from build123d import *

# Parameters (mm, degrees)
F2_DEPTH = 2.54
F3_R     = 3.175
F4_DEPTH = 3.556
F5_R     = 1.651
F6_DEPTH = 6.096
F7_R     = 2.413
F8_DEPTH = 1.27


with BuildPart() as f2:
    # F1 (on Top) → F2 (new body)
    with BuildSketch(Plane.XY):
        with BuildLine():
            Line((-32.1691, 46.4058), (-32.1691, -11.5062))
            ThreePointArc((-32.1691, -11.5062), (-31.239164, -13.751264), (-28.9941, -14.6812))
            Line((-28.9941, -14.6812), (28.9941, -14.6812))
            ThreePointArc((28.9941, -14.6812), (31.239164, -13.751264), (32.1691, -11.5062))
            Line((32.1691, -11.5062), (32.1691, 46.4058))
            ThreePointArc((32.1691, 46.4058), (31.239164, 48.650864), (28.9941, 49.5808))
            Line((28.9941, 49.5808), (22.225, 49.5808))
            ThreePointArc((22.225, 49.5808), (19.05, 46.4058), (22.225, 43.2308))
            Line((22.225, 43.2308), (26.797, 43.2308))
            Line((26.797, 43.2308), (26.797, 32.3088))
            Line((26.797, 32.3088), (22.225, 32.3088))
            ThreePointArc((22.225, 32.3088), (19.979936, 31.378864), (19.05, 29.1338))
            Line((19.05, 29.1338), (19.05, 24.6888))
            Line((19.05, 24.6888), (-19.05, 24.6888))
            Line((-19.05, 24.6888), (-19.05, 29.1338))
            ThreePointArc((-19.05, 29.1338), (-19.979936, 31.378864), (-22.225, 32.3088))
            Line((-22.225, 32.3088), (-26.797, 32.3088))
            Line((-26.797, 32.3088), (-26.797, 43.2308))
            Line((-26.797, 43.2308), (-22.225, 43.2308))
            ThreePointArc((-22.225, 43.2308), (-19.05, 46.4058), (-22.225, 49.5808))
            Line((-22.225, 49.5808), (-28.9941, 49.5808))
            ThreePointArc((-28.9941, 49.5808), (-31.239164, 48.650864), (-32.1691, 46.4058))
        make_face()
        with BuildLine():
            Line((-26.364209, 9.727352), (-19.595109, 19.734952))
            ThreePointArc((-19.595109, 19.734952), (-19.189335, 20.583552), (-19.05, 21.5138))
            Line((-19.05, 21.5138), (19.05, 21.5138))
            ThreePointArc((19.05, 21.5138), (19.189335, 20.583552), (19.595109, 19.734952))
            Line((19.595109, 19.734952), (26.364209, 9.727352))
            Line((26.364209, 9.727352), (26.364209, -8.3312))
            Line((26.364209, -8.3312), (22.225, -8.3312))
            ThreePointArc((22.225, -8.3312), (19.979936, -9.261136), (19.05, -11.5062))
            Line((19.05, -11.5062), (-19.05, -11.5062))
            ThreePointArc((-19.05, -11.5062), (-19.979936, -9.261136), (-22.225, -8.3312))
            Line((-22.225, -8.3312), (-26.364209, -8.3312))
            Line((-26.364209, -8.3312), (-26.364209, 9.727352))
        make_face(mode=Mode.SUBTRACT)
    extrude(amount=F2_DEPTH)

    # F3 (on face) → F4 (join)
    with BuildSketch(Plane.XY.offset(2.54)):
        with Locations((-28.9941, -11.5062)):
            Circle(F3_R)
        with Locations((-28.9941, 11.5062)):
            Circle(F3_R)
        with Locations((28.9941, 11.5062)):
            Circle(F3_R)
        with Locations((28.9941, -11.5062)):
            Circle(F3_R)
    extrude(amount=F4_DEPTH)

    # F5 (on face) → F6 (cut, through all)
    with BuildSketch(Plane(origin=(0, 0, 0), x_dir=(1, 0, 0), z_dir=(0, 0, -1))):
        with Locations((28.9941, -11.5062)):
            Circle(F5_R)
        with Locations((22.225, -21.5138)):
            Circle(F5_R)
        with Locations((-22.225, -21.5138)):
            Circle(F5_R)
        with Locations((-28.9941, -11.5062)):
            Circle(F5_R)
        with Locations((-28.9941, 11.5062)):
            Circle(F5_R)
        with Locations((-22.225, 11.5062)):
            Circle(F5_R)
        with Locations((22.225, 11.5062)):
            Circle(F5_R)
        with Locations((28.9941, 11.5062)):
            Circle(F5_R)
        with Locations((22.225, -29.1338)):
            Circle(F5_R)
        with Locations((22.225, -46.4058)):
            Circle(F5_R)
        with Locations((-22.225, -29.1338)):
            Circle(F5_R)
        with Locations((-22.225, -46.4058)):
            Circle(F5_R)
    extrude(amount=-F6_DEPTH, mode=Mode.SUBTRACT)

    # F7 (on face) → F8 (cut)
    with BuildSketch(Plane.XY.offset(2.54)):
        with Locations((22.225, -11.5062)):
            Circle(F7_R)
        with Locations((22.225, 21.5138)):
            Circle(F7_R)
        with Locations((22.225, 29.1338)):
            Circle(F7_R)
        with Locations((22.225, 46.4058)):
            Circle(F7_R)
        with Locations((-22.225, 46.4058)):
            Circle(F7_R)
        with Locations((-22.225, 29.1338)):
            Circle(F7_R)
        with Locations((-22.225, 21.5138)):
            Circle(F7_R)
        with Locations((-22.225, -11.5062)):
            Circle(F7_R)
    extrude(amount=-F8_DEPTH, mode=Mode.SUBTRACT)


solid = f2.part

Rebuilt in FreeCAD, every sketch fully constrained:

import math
import FreeCAD as App
import Part
import Sketcher
from FreeCAD import Vector
Q = App.Units.Quantity

doc = App.newDocument("Part")
body = doc.addObject("PartDesign::Body", "Body")

sketch1 = body.newObject("Sketcher::SketchObject", "Sketch")
sketch1.AttachmentSupport = (doc.getObject("XY_Plane"), [""])
sketch1.MapMode = "FlatFace"
sketch1.addGeometry(Part.LineSegment(Vector(-32.2, 46.4, 0), Vector(-32.2, -11.5, 0)), False)
sketch1.addGeometry(Part.ArcOfCircle(Part.Circle(Vector(-29, -11.5, 0), Vector(0, 0, 1), 3.2), math.radians(-180), math.radians(-90)), False)
sketch1.addGeometry(Part.LineSegment(Vector(-29, -14.7, 0), Vector(29, -14.7, 0)), False)
sketch1.addGeometry(Part.ArcOfCircle(Part.Circle(Vector(29, -11.5, 0), Vector(0, 0, 1), 3.2), math.radians(-90), math.radians(0)), False)
sketch1.addGeometry(Part.LineSegment(Vector(32.2, -11.5, 0), Vector(32.2, 46.4, 0)), False)
sketch1.addGeometry(Part.ArcOfCircle(Part.Circle(Vector(29, 46.4, 0), Vector(0, 0, 1), 3.2), math.radians(0), math.radians(90)), False)
sketch1.addGeometry(Part.LineSegment(Vector(29, 49.6, 0), Vector(22.2, 49.6, 0)), False)
sketch1.addGeometry(Part.ArcOfCircle(Part.Circle(Vector(22.2, 46.4, 0), Vector(0, 0, 1), 3.2), math.radians(90), math.radians(270)), False)
sketch1.addGeometry(Part.LineSegment(Vector(22.2, 43.2, 0), Vector(26.8, 43.2, 0)), False)
sketch1.addGeometry(Part.LineSegment(Vector(26.8, 43.2, 0), Vector(26.8, 32.3, 0)), False)
sketch1.addGeometry(Part.LineSegment(Vector(26.8, 32.3, 0), Vector(22.2, 32.3, 0)), False)
sketch1.addGeometry(Part.ArcOfCircle(Part.Circle(Vector(22.2, 29.1, 0), Vector(0, 0, 1), 3.2), math.radians(90), math.radians(180)), False)
sketch1.addGeometry(Part.LineSegment(Vector(19.1, 29.1, 0), Vector(19.1, 24.7, 0)), False)
sketch1.addGeometry(Part.LineSegment(Vector(19.1, 24.7, 0), Vector(-19.1, 24.7, 0)), False)
sketch1.addGeometry(Part.LineSegment(Vector(-19.1, 24.7, 0), Vector(-19.1, 29.1, 0)), False)
sketch1.addGeometry(Part.ArcOfCircle(Part.Circle(Vector(-22.2, 29.1, 0), Vector(0, 0, 1), 3.2), math.radians(0), math.radians(90)), False)
sketch1.addGeometry(Part.LineSegment(Vector(-22.2, 32.3, 0), Vector(-26.8, 32.3, 0)), False)
sketch1.addGeometry(Part.LineSegment(Vector(-26.8, 32.3, 0), Vector(-26.8, 43.2, 0)), False)
sketch1.addGeometry(Part.LineSegment(Vector(-26.8, 43.2, 0), Vector(-22.2, 43.2, 0)), False)
sketch1.addGeometry(Part.ArcOfCircle(Part.Circle(Vector(-22.2, 46.4, 0), Vector(0, 0, 1), 3.2), math.radians(-90), math.radians(90)), False)
sketch1.addGeometry(Part.LineSegment(Vector(-22.2, 49.6, 0), Vector(-29, 49.6, 0)), False)
sketch1.addGeometry(Part.ArcOfCircle(Part.Circle(Vector(-29, 46.4, 0), Vector(0, 0, 1), 3.2), math.radians(90), math.radians(180)), False)
sketch1.addGeometry(Part.LineSegment(Vector(-26.4, -8.3, 0), Vector(-26.4, 9.7, 0)), False)
sketch1.addGeometry(Part.LineSegment(Vector(-26.4, 9.7, 0), Vector(-19.6, 19.7, 0)), False)
sketch1.addGeometry(Part.ArcOfCircle(Part.Circle(Vector(-22.2, 21.5, 0), Vector(0, 0, 1), 3.2), math.radians(-34), math.radians(0)), False)
sketch1.addGeometry(Part.LineSegment(Vector(-19.1, 21.5, 0), Vector(19.1, 21.5, 0)), False)
sketch1.addGeometry(Part.ArcOfCircle(Part.Circle(Vector(22.2, 21.5, 0), Vector(0, 0, 1), 3.2), math.radians(-180), math.radians(-146)), False)
sketch1.addGeometry(Part.LineSegment(Vector(19.6, 19.7, 0), Vector(26.4, 9.7, 0)), False)
sketch1.addGeometry(Part.LineSegment(Vector(26.4, 9.7, 0), Vector(26.4, -8.3, 0)), False)
sketch1.addGeometry(Part.LineSegment(Vector(26.4, -8.3, 0), Vector(22.2, -8.3, 0)), False)
sketch1.addGeometry(Part.ArcOfCircle(Part.Circle(Vector(22.2, -11.5, 0), Vector(0, 0, 1), 3.2), math.radians(90), math.radians(180)), False)
sketch1.addGeometry(Part.LineSegment(Vector(19.1, -11.5, 0), Vector(-19.1, -11.5, 0)), False)
sketch1.addGeometry(Part.ArcOfCircle(Part.Circle(Vector(-22.2, -11.5, 0), Vector(0, 0, 1), 3.2), math.radians(0), math.radians(90)), False)
sketch1.addGeometry(Part.LineSegment(Vector(-22.2, -8.3, 0), Vector(-26.4, -8.3, 0)), False)
sketch1.addConstraint(Sketcher.Constraint("Tangent", 0, 2, 1, 1))
sketch1.addConstraint(Sketcher.Constraint("Tangent", 1, 2, 2, 1))
sketch1.addConstraint(Sketcher.Constraint("Tangent", 2, 2, 3, 1))
sketch1.addConstraint(Sketcher.Constraint("Tangent", 3, 2, 4, 1))
sketch1.addConstraint(Sketcher.Constraint("Tangent", 4, 2, 5, 1))
sketch1.addConstraint(Sketcher.Constraint("Tangent", 5, 2, 6, 1))
sketch1.addConstraint(Sketcher.Constraint("Tangent", 6, 2, 7, 1))
sketch1.addConstraint(Sketcher.Constraint("Tangent", 7, 2, 8, 1))
sketch1.addConstraint(Sketcher.Constraint("Coincident", 8, 2, 9, 1))
sketch1.addConstraint(Sketcher.Constraint("Coincident", 9, 2, 10, 1))
sketch1.addConstraint(Sketcher.Constraint("Tangent", 10, 2, 11, 1))
sketch1.addConstraint(Sketcher.Constraint("Tangent", 11, 2, 12, 1))
sketch1.addConstraint(Sketcher.Constraint("Coincident", 12, 2, 13, 1))
sketch1.addConstraint(Sketcher.Constraint("Coincident", 13, 2, 14, 1))
sketch1.addConstraint(Sketcher.Constraint("Tangent", 14, 2, 15, 1))
sketch1.addConstraint(Sketcher.Constraint("Tangent", 15, 2, 16, 1))
sketch1.addConstraint(Sketcher.Constraint("Coincident", 16, 2, 17, 1))
sketch1.addConstraint(Sketcher.Constraint("Coincident", 17, 2, 18, 1))
sketch1.addConstraint(Sketcher.Constraint("Tangent", 18, 2, 19, 1))
sketch1.addConstraint(Sketcher.Constraint("Tangent", 19, 2, 20, 1))
sketch1.addConstraint(Sketcher.Constraint("Tangent", 20, 2, 21, 1))
sketch1.addConstraint(Sketcher.Constraint("Tangent", 21, 2, 0, 1))
sketch1.addConstraint(Sketcher.Constraint("Coincident", 22, 2, 23, 1))
sketch1.addConstraint(Sketcher.Constraint("Tangent", 23, 2, 24, 1))
sketch1.addConstraint(Sketcher.Constraint("Coincident", 24, 2, 25, 1))
sketch1.addConstraint(Sketcher.Constraint("Coincident", 25, 2, 26, 1))
sketch1.addConstraint(Sketcher.Constraint("Tangent", 26, 2, 27, 1))
sketch1.addConstraint(Sketcher.Constraint("Coincident", 27, 2, 28, 1))
sketch1.addConstraint(Sketcher.Constraint("Coincident", 28, 2, 29, 1))
sketch1.addConstraint(Sketcher.Constraint("Tangent", 29, 2, 30, 1))
sketch1.addConstraint(Sketcher.Constraint("Coincident", 30, 2, 31, 1))
sketch1.addConstraint(Sketcher.Constraint("Coincident", 31, 2, 32, 1))
sketch1.addConstraint(Sketcher.Constraint("Tangent", 32, 2, 33, 1))
sketch1.addConstraint(Sketcher.Constraint("Coincident", 33, 2, 22, 1))
sketch1.addConstraint(Sketcher.Constraint("Vertical", 0))
sketch1.addConstraint(Sketcher.Constraint("Horizontal", 2))
sketch1.addConstraint(Sketcher.Constraint("Vertical", 4))
sketch1.addConstraint(Sketcher.Constraint("Horizontal", 6))
sketch1.addConstraint(Sketcher.Constraint("Horizontal", 8))
sketch1.addConstraint(Sketcher.Constraint("Vertical", 9))
sketch1.addConstraint(Sketcher.Constraint("Horizontal", 10))
sketch1.addConstraint(Sketcher.Constraint("Vertical", 12))
sketch1.addConstraint(Sketcher.Constraint("Horizontal", 13))
sketch1.addConstraint(Sketcher.Constraint("Vertical", 14))
sketch1.addConstraint(Sketcher.Constraint("Horizontal", 16))
sketch1.addConstraint(Sketcher.Constraint("Vertical", 17))
sketch1.addConstraint(Sketcher.Constraint("Horizontal", 18))
sketch1.addConstraint(Sketcher.Constraint("Horizontal", 20))
sketch1.addConstraint(Sketcher.Constraint("Vertical", 22))
sketch1.addConstraint(Sketcher.Constraint("Horizontal", 25))
sketch1.addConstraint(Sketcher.Constraint("Vertical", 28))
sketch1.addConstraint(Sketcher.Constraint("Horizontal", 29))
sketch1.addConstraint(Sketcher.Constraint("Horizontal", 31))
sketch1.addConstraint(Sketcher.Constraint("Horizontal", 33))
sketch1.addConstraint(Sketcher.Constraint("Equal", 1, 3))
sketch1.addConstraint(Sketcher.Constraint("Equal", 3, 5))
sketch1.addConstraint(Sketcher.Constraint("Equal", 5, 7))
sketch1.addConstraint(Sketcher.Constraint("Equal", 7, 11))
sketch1.addConstraint(Sketcher.Constraint("Equal", 11, 15))
sketch1.addConstraint(Sketcher.Constraint("Equal", 15, 19))
sketch1.addConstraint(Sketcher.Constraint("Equal", 19, 21))
sketch1.addConstraint(Sketcher.Constraint("Equal", 24, 26))
sketch1.addConstraint(Sketcher.Constraint("Equal", 21, 30))
sketch1.addConstraint(Sketcher.Constraint("Equal", 30, 32))
sketch1.addConstraint(Sketcher.Constraint("Symmetric", 11, 3, 15, 3, -2))
sketch1.addConstraint(Sketcher.Constraint("Symmetric", 7, 3, 19, 3, -2))
sketch1.addConstraint(Sketcher.Constraint("Symmetric", 24, 3, 26, 3, -2))
sketch1.addConstraint(Sketcher.Constraint("Symmetric", 30, 3, 32, 3, -2))
sketch1.addConstraint(Sketcher.Constraint("Symmetric", 22, 2, 27, 2, -2))
sketch1.addConstraint(Sketcher.Constraint("Horizontal", 3, 3, 30, 3))
sketch1.addConstraint(Sketcher.Constraint("Horizontal", 3, 2, 30, 2))
sketch1.addConstraint(Sketcher.Constraint("Vertical", 7, 3, 11, 3))
sketch1.addConstraint(Sketcher.Constraint("Vertical", 11, 3, 30, 3))
sketch1.addConstraint(Sketcher.Constraint("Vertical", 14, 2, 24, 2))
sketch1.addConstraint(Sketcher.Constraint("Equal", 10, 16))
sketch1.addConstraint(Sketcher.Constraint("Equal", 6, 20))
sketch1.addConstraint(Sketcher.Constraint("DistanceX", 13, 2, 13, 1, Q("1.5 in")))
sketch1.addConstraint(Sketcher.Constraint("Radius", 1, Q("0.125 in")))
sketch1.addConstraint(Sketcher.Constraint("DistanceX", 8, 1, 8, 2, Q("0.18 in")))
sketch1.addConstraint(Sketcher.Constraint("DistanceY", 0, 2, 0, 1, Q("2.28 in")))
sketch1.addConstraint(Sketcher.Constraint("DistanceY", 9, 2, 9, 1, Q("0.43 in")))
sketch1.addConstraint(Sketcher.Constraint("DistanceY", 24, 3, 15, 3, Q("0.2999999 in")))
sketch1.addConstraint(Sketcher.Constraint("DistanceY", 12, 2, 10, 2, Q("0.3 in")))
sketch1.addConstraint(Sketcher.Constraint("DistanceY", 24, 2, 14, 2, Q("0.3 in")))
sketch1.addConstraint(Sketcher.Constraint("DistanceX", 2, 1, 2, 2, Q("2.283 in")))
sketch1.addConstraint(Sketcher.Constraint("DistanceY", 1, 3, -1, 1, Q("0.453 in")))
sketch1.addConstraint(Sketcher.Constraint("Radius", 24, 3.175009))
sketch1.addConstraint(Sketcher.Constraint("DistanceY", 22, 2, 23, 2, Q("0.394 in")))
sketch1.addConstraint(Sketcher.Constraint("DistanceX", 22, 2, 23, 2, Q("0.2665 in")))
pad1 = body.newObject("PartDesign::Pad", "Pad")
pad1.Profile = sketch1
pad1.Length = Q("0.1 in")

sketch2 = body.newObject("Sketcher::SketchObject", "Sketch001")
sketch2.AttachmentSupport = (doc.getObject("XY_Plane"), [""])
sketch2.MapMode = "FlatFace"
sketch2.AttachmentOffset = App.Placement(Vector(0, 0, 0.1 * 25.4), App.Rotation())
sketch2.addGeometry(Part.Circle(Vector(-29, -11.5, 0), Vector(0, 0, 1), 3.2), False)
sketch2.addGeometry(Part.Circle(Vector(-29, 11.5, 0), Vector(0, 0, 1), 3.2), False)
sketch2.addGeometry(Part.Circle(Vector(29, 11.5, 0), Vector(0, 0, 1), 3.2), False)
sketch2.addGeometry(Part.Circle(Vector(29, -11.5, 0), Vector(0, 0, 1), 3.2), False)
sketch2.addConstraint(Sketcher.Constraint("Equal", 0, 1))
sketch2.addConstraint(Sketcher.Constraint("Equal", 1, 2))
sketch2.addConstraint(Sketcher.Constraint("Equal", 2, 3))
sketch2.addConstraint(Sketcher.Constraint("Symmetric", 0, 3, 2, 3, -1, 1))
sketch2.addConstraint(Sketcher.Constraint("Symmetric", 1, 3, 3, 3, -1, 1))
sketch2.addConstraint(Sketcher.Constraint("Symmetric", 1, 3, 2, 3, -2))
sketch2.addConstraint(Sketcher.Constraint("Diameter", 0, Q("0.25 in")))
sketch2.addConstraint(Sketcher.Constraint("DistanceY", 0, 3, -1, 1, Q("0.453 in")))
sketch2.addConstraint(Sketcher.Constraint("DistanceX", 1, 3, 2, 3, Q("2.283 in")))
pad2 = body.newObject("PartDesign::Pad", "Pad001")
pad2.Profile = sketch2
pad2.Length = Q("0.14 in")

sketch3 = body.newObject("Sketcher::SketchObject", "Sketch002")
sketch3.AttachmentSupport = (doc.getObject("XY_Plane"), [""])
sketch3.MapMode = "FlatFace"
sketch3.addGeometry(Part.Circle(Vector(29, 11.5, 0), Vector(0, 0, 1), 1.7), False)
sketch3.addGeometry(Part.Circle(Vector(22.2, 21.5, 0), Vector(0, 0, 1), 1.7), False)
sketch3.addGeometry(Part.Circle(Vector(-22.2, 21.5, 0), Vector(0, 0, 1), 1.7), False)
sketch3.addGeometry(Part.Circle(Vector(-29, 11.5, 0), Vector(0, 0, 1), 1.7), False)
sketch3.addGeometry(Part.Circle(Vector(-29, -11.5, 0), Vector(0, 0, 1), 1.7), False)
sketch3.addGeometry(Part.Circle(Vector(-22.2, -11.5, 0), Vector(0, 0, 1), 1.7), False)
sketch3.addGeometry(Part.Circle(Vector(22.2, -11.5, 0), Vector(0, 0, 1), 1.7), False)
sketch3.addGeometry(Part.Circle(Vector(29, -11.5, 0), Vector(0, 0, 1), 1.7), False)
sketch3.addGeometry(Part.Circle(Vector(22.2, 29.1, 0), Vector(0, 0, 1), 1.7), False)
sketch3.addGeometry(Part.Circle(Vector(22.2, 46.4, 0), Vector(0, 0, 1), 1.7), False)
sketch3.addGeometry(Part.Circle(Vector(-22.2, 29.1, 0), Vector(0, 0, 1), 1.7), False)
sketch3.addGeometry(Part.Circle(Vector(-22.2, 46.4, 0), Vector(0, 0, 1), 1.7), False)
sketch3.addConstraint(Sketcher.Constraint("Equal", 0, 1))
sketch3.addConstraint(Sketcher.Constraint("Equal", 1, 2))
sketch3.addConstraint(Sketcher.Constraint("Equal", 2, 3))
sketch3.addConstraint(Sketcher.Constraint("Equal", 3, 4))
sketch3.addConstraint(Sketcher.Constraint("Equal", 4, 5))
sketch3.addConstraint(Sketcher.Constraint("Equal", 5, 6))
sketch3.addConstraint(Sketcher.Constraint("Equal", 6, 7))
sketch3.addConstraint(Sketcher.Constraint("Equal", 7, 8))
sketch3.addConstraint(Sketcher.Constraint("Equal", 8, 9))
sketch3.addConstraint(Sketcher.Constraint("Equal", 9, 10))
sketch3.addConstraint(Sketcher.Constraint("Equal", 10, 11))
sketch3.addConstraint(Sketcher.Constraint("Symmetric", 0, 3, 4, 3, -1, 1))
sketch3.addConstraint(Sketcher.Constraint("Symmetric", 3, 3, 7, 3, -1, 1))
sketch3.addConstraint(Sketcher.Constraint("Symmetric", 1, 3, 2, 3, -2))
sketch3.addConstraint(Sketcher.Constraint("Symmetric", 0, 3, 3, 3, -2))
sketch3.addConstraint(Sketcher.Constraint("Symmetric", 5, 3, 6, 3, -2))
sketch3.addConstraint(Sketcher.Constraint("Symmetric", 8, 3, 10, 3, -2))
sketch3.addConstraint(Sketcher.Constraint("Symmetric", 9, 3, 11, 3, -2))
sketch3.addConstraint(Sketcher.Constraint("Horizontal", 4, 3, 5, 3))
sketch3.addConstraint(Sketcher.Constraint("Vertical", 2, 3, 5, 3))
sketch3.addConstraint(Sketcher.Constraint("Vertical", 6, 3, 8, 3))
sketch3.addConstraint(Sketcher.Constraint("Vertical", 8, 3, 9, 3))
sketch3.addConstraint(Sketcher.Constraint("Diameter", 0, Q("0.13 in")))
sketch3.addConstraint(Sketcher.Constraint("DistanceY", 4, 3, 2, 3, Q("1.3 in")))
sketch3.addConstraint(Sketcher.Constraint("DistanceY", 1, 3, 8, 3, Q("0.3 in")))
sketch3.addConstraint(Sketcher.Constraint("DistanceX", 2, 3, 1, 3, Q("1.75 in")))
sketch3.addConstraint(Sketcher.Constraint("DistanceY", 8, 3, 9, 3, Q("0.68 in")))
sketch3.addConstraint(Sketcher.Constraint("DistanceY", -1, 1, 0, 3, Q("0.453 in")))
sketch3.addConstraint(Sketcher.Constraint("DistanceX", 3, 3, 0, 3, Q("2.283 in")))
pocket1 = body.newObject("PartDesign::Pocket", "Pocket")
pocket1.Profile = sketch3
pocket1.Type = "ThroughAll"
pocket1.Reversed = True

sketch4 = body.newObject("Sketcher::SketchObject", "Sketch003")
sketch4.AttachmentSupport = (doc.getObject("XY_Plane"), [""])
sketch4.MapMode = "FlatFace"
sketch4.AttachmentOffset = App.Placement(Vector(0, 0, 0.1 * 25.4), App.Rotation())
sketch4.addGeometry(Part.Circle(Vector(22.2, -11.5, 0), Vector(0, 0, 1), 2.4), False)
sketch4.addGeometry(Part.Circle(Vector(22.2, 21.5, 0), Vector(0, 0, 1), 2.4), False)
sketch4.addGeometry(Part.Circle(Vector(22.2, 29.1, 0), Vector(0, 0, 1), 2.4), False)
sketch4.addGeometry(Part.Circle(Vector(22.2, 46.4, 0), Vector(0, 0, 1), 2.4), False)
sketch4.addGeometry(Part.Circle(Vector(-22.2, 46.4, 0), Vector(0, 0, 1), 2.4), False)
sketch4.addGeometry(Part.Circle(Vector(-22.2, 29.1, 0), Vector(0, 0, 1), 2.4), False)
sketch4.addGeometry(Part.Circle(Vector(-22.2, 21.5, 0), Vector(0, 0, 1), 2.4), False)
sketch4.addGeometry(Part.Circle(Vector(-22.2, -11.5, 0), Vector(0, 0, 1), 2.4), False)
sketch4.addConstraint(Sketcher.Constraint("Equal", 0, 1))
sketch4.addConstraint(Sketcher.Constraint("Equal", 1, 2))
sketch4.addConstraint(Sketcher.Constraint("Equal", 2, 3))
sketch4.addConstraint(Sketcher.Constraint("Equal", 3, 4))
sketch4.addConstraint(Sketcher.Constraint("Equal", 4, 5))
sketch4.addConstraint(Sketcher.Constraint("Equal", 5, 6))
sketch4.addConstraint(Sketcher.Constraint("Equal", 6, 7))
sketch4.addConstraint(Sketcher.Constraint("Symmetric", 3, 3, 4, 3, -2))
sketch4.addConstraint(Sketcher.Constraint("Symmetric", 2, 3, 5, 3, -2))
sketch4.addConstraint(Sketcher.Constraint("Symmetric", 1, 3, 6, 3, -2))
sketch4.addConstraint(Sketcher.Constraint("Symmetric", 0, 3, 7, 3, -2))
sketch4.addConstraint(Sketcher.Constraint("Vertical", 0, 3, 1, 3))
sketch4.addConstraint(Sketcher.Constraint("Vertical", 1, 3, 2, 3))
sketch4.addConstraint(Sketcher.Constraint("Vertical", 2, 3, 3, 3))
sketch4.addConstraint(Sketcher.Constraint("Diameter", 0, Q("0.19 in")))
sketch4.addConstraint(Sketcher.Constraint("DistanceY", 0, 3, 1, 3, Q("1.3 in")))
sketch4.addConstraint(Sketcher.Constraint("DistanceY", 1, 3, 2, 3, Q("0.3 in")))
sketch4.addConstraint(Sketcher.Constraint("DistanceY", 2, 3, 3, 3, Q("0.68 in")))
sketch4.addConstraint(Sketcher.Constraint("DistanceX", 4, 3, 3, 3, Q("1.75 in")))
sketch4.addConstraint(Sketcher.Constraint("DistanceY", 0, 3, -1, 1, Q("0.453 in")))
pocket2 = body.newObject("PartDesign::Pocket", "Pocket001")
pocket2.Profile = sketch4
pocket2.Length = Q("0.05 in")

doc.recompute()
